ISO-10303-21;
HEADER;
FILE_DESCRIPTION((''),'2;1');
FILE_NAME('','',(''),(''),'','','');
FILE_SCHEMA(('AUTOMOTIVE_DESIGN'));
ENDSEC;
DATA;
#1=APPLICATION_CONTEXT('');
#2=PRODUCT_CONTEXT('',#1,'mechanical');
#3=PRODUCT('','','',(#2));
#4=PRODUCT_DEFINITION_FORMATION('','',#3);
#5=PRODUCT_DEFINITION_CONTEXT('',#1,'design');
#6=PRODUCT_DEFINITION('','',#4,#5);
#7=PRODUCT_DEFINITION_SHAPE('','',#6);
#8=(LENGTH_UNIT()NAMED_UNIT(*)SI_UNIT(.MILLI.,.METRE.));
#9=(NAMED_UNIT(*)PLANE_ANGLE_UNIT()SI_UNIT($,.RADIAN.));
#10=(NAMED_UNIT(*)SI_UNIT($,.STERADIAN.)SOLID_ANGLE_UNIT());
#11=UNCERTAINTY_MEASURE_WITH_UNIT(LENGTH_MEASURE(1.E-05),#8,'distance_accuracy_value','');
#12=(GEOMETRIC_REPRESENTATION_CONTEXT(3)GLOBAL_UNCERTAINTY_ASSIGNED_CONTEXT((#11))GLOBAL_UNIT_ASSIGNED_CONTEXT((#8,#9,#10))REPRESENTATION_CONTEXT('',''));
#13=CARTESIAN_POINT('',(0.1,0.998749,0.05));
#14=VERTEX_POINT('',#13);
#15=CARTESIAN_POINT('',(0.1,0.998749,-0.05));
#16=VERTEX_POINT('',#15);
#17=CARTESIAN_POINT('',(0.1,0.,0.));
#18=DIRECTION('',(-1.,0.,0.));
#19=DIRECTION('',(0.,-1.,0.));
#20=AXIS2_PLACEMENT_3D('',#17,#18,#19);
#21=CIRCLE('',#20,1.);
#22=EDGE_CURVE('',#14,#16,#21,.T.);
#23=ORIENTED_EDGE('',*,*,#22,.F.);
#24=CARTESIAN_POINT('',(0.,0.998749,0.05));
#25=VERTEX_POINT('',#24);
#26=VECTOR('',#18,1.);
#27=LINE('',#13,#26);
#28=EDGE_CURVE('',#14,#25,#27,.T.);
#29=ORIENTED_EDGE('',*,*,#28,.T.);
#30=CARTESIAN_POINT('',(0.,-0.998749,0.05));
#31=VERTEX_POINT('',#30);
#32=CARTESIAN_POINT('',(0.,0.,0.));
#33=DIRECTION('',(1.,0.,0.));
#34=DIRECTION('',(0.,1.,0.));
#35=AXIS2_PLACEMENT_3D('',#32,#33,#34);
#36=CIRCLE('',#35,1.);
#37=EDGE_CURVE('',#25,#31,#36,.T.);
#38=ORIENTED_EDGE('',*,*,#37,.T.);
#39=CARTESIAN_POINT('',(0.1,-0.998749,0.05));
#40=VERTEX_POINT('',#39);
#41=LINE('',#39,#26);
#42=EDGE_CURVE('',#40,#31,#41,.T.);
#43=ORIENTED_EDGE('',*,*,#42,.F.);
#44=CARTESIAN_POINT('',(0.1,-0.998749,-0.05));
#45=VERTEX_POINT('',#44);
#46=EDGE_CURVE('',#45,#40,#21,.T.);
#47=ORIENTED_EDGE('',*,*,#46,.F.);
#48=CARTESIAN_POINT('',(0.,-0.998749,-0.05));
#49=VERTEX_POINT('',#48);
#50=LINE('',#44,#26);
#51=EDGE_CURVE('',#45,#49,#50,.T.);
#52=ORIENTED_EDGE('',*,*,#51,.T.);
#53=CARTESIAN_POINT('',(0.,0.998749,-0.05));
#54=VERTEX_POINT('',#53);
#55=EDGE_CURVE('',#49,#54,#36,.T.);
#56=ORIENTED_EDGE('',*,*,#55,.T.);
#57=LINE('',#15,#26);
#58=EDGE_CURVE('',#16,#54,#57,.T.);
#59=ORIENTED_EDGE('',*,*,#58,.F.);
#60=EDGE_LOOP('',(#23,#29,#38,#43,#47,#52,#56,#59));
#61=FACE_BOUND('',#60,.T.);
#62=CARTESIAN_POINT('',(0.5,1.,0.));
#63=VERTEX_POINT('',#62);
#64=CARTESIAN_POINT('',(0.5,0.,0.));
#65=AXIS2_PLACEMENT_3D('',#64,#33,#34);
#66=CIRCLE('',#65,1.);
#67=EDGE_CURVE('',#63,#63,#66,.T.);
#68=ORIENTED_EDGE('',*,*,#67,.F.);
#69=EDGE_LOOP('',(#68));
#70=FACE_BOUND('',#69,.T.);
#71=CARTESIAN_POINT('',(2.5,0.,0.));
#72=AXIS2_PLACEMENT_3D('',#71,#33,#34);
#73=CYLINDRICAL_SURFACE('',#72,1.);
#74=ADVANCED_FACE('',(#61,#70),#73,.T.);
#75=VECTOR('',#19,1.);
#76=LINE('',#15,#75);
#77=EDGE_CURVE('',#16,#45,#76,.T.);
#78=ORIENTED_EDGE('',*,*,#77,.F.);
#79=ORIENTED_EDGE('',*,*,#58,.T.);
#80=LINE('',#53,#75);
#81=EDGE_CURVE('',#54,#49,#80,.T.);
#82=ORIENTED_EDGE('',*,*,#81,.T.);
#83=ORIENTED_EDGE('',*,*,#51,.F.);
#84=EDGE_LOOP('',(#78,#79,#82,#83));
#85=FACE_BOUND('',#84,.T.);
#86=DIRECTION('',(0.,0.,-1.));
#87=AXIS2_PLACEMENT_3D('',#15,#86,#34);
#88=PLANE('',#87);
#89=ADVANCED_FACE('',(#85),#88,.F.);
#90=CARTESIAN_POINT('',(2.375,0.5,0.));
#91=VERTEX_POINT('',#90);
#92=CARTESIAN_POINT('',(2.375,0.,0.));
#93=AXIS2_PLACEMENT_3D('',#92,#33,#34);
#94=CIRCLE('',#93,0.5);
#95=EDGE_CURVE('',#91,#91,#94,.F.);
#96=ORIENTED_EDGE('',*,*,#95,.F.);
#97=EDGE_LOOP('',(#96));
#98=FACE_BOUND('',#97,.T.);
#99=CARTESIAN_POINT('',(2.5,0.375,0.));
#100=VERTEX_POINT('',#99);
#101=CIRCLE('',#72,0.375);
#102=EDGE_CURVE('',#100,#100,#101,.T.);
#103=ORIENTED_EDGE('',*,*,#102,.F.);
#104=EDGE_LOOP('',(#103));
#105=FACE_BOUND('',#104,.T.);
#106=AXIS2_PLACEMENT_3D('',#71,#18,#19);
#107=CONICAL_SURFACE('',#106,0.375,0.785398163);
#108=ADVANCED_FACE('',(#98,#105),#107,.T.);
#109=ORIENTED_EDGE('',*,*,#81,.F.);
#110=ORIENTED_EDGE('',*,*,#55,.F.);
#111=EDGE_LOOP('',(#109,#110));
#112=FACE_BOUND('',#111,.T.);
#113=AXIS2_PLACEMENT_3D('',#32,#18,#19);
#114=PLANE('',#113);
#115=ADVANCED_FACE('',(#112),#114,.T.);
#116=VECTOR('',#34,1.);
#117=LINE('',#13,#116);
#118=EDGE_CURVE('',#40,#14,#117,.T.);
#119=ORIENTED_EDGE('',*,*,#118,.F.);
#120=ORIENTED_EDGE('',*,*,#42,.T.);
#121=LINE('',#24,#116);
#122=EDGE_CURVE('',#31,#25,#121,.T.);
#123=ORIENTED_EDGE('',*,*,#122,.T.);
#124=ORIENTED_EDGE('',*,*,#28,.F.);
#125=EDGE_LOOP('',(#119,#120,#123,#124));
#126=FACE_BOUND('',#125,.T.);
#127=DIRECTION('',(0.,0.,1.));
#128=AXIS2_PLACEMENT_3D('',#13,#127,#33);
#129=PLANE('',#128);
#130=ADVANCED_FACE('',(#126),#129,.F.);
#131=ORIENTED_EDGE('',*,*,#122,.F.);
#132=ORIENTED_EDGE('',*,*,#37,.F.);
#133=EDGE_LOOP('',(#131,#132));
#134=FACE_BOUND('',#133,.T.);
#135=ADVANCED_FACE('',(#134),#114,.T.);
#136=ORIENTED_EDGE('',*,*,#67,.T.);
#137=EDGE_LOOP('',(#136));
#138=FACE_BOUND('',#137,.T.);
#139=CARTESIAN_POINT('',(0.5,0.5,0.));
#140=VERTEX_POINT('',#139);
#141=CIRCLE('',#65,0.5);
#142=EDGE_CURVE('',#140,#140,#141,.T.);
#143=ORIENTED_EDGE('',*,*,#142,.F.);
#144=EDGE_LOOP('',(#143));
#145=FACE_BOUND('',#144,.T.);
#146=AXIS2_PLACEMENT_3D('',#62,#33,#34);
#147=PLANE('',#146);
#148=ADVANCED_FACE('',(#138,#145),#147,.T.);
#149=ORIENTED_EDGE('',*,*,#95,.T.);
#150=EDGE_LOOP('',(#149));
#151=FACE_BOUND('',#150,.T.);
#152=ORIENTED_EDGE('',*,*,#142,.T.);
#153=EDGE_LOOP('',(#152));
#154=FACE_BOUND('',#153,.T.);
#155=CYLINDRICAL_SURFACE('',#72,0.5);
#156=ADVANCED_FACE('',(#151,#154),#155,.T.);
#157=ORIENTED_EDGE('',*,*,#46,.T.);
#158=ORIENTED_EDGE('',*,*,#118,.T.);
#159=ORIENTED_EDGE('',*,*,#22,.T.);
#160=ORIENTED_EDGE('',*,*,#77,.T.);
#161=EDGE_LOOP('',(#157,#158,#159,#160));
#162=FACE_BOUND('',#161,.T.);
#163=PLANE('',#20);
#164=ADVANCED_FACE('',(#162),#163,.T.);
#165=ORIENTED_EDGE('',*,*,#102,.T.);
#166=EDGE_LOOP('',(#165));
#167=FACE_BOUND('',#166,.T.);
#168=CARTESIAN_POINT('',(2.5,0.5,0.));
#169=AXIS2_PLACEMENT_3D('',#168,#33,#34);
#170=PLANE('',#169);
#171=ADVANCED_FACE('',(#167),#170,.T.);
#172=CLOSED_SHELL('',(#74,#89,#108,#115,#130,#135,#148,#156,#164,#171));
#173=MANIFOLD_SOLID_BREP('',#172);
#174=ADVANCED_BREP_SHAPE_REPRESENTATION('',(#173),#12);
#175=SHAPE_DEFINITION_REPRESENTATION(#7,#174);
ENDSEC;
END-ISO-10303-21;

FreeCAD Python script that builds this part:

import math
import FreeCAD as App
import Part
import Sketcher


def edges_at(feature, points):
    """Names of the edges that pass closest to the given points."""
    edges = feature.Shape.Edges
    near = lambda p: min(range(len(edges)), key=lambda i: edges[i].distToShape(Part.Vertex(*p))[0])
    return sorted({f"Edge{near(p) + 1}" for p in points})

doc = App.newDocument("Part")
body = doc.addObject("PartDesign::Body", "Body")

sketch1 = body.newObject("Sketcher::SketchObject", "Sketch")
sketch1.AttachmentSupport = (doc.getObject("XY_Plane"), [""])
sketch1.MapMode = "FlatFace"
sketch1.addGeometry([
    Part.LineSegment(App.Vector(0, 1, 0), App.Vector(0, 0, 0)),
    Part.LineSegment(App.Vector(0, 0, 0), App.Vector(2.5, 0, 0)),
    Part.LineSegment(App.Vector(2.5, 0, 0), App.Vector(2.5, 0.5, 0)),
    Part.LineSegment(App.Vector(2.5, 0.5, 0), App.Vector(0.5, 0.5, 0)),
    Part.LineSegment(App.Vector(0.5, 0.5, 0), App.Vector(0.5, 1, 0)),
    Part.LineSegment(App.Vector(0.5, 1, 0), App.Vector(0, 1, 0)),
], False)
sketch1.addConstraint([
    Sketcher.Constraint("Coincident", 0, 2, 1, 1),
    Sketcher.Constraint("Coincident", 1, 2, 2, 1),
    Sketcher.Constraint("Coincident", 2, 2, 3, 1),
    Sketcher.Constraint("Coincident", 3, 2, 4, 1),
    Sketcher.Constraint("Coincident", 4, 2, 5, 1),
    Sketcher.Constraint("Coincident", 5, 2, 0, 1),
    Sketcher.Constraint("Vertical", 0),
    Sketcher.Constraint("Horizontal", 1),
    Sketcher.Constraint("Vertical", 2),
    Sketcher.Constraint("Horizontal", 3),
    Sketcher.Constraint("Vertical", 4),
    Sketcher.Constraint("Horizontal", 5),
    Sketcher.Constraint("Coincident", 0, 2, -1, 1),
    Sketcher.Constraint("Equal", 5, 2),
    Sketcher.Constraint("Equal", 2, 4),
    Sketcher.Constraint("DistanceX", 3, 2, 3, 1, 2.0),
    Sketcher.Constraint("DistanceY", 0, 2, 0, 1, 1.0),
])
revolution = body.newObject("PartDesign::Revolution", "Revolution")
revolution.Profile = sketch1
revolution.ReferenceAxis = (sketch1, ["H_Axis"])
revolution.Angle = 360
doc.recompute()

chamfer = body.newObject("PartDesign::Chamfer", "Chamfer")
chamfer.Base = (revolution, edges_at(revolution, [(2.5, -0.5, 0)]))
chamfer.Size = 0.125

sketch2 = body.newObject("Sketcher::SketchObject", "Sketch001")
sketch2.AttachmentSupport = (doc.getObject("YZ_Plane"), [""])
sketch2.MapMode = "FlatFace"
sketch2.addGeometry([
    Part.LineSegment(App.Vector(1, -0.05, 0), App.Vector(-1, -0.05, 0)),
    Part.ArcOfCircle(Part.Circle(App.Vector(0, 0, 0), App.Vector(0, 0, 1), 1), math.radians(177.13), math.radians(182.87)),
    Part.LineSegment(App.Vector(-1, 0.05, 0), App.Vector(1, 0.05, 0)),
    Part.ArcOfCircle(Part.Circle(App.Vector(0, 0, 0), App.Vector(0, 0, 1), 1), math.radians(-2.87), math.radians(2.87)),
], False)
sketch2.addConstraint([
    Sketcher.Constraint("Coincident", 0, 2, 1, 2),
    Sketcher.Constraint("Coincident", 1, 1, 2, 1),
    Sketcher.Constraint("Coincident", 2, 2, 3, 2),
    Sketcher.Constraint("Coincident", 3, 1, 0, 1),
    Sketcher.Constraint("Horizontal", 0),
    Sketcher.Constraint("Horizontal", 2),
    Sketcher.Constraint("Coincident", 1, 3, -1, 1),
    Sketcher.Constraint("Coincident", 3, 3, -1, 1),
    Sketcher.Constraint("Equal", 1, 3),
    Sketcher.Constraint("Vertical", 0, 2, 1, 1),
    Sketcher.Constraint("Radius", 1, 1.0),
    Sketcher.Constraint("DistanceY", 0, 2, 1, 1, 0.1),
])
pocket1 = body.newObject("PartDesign::Pocket", "Pocket")
pocket1.Profile = sketch2
pocket1.Length = 0.1
pocket1.Reversed = True

doc.recompute()
